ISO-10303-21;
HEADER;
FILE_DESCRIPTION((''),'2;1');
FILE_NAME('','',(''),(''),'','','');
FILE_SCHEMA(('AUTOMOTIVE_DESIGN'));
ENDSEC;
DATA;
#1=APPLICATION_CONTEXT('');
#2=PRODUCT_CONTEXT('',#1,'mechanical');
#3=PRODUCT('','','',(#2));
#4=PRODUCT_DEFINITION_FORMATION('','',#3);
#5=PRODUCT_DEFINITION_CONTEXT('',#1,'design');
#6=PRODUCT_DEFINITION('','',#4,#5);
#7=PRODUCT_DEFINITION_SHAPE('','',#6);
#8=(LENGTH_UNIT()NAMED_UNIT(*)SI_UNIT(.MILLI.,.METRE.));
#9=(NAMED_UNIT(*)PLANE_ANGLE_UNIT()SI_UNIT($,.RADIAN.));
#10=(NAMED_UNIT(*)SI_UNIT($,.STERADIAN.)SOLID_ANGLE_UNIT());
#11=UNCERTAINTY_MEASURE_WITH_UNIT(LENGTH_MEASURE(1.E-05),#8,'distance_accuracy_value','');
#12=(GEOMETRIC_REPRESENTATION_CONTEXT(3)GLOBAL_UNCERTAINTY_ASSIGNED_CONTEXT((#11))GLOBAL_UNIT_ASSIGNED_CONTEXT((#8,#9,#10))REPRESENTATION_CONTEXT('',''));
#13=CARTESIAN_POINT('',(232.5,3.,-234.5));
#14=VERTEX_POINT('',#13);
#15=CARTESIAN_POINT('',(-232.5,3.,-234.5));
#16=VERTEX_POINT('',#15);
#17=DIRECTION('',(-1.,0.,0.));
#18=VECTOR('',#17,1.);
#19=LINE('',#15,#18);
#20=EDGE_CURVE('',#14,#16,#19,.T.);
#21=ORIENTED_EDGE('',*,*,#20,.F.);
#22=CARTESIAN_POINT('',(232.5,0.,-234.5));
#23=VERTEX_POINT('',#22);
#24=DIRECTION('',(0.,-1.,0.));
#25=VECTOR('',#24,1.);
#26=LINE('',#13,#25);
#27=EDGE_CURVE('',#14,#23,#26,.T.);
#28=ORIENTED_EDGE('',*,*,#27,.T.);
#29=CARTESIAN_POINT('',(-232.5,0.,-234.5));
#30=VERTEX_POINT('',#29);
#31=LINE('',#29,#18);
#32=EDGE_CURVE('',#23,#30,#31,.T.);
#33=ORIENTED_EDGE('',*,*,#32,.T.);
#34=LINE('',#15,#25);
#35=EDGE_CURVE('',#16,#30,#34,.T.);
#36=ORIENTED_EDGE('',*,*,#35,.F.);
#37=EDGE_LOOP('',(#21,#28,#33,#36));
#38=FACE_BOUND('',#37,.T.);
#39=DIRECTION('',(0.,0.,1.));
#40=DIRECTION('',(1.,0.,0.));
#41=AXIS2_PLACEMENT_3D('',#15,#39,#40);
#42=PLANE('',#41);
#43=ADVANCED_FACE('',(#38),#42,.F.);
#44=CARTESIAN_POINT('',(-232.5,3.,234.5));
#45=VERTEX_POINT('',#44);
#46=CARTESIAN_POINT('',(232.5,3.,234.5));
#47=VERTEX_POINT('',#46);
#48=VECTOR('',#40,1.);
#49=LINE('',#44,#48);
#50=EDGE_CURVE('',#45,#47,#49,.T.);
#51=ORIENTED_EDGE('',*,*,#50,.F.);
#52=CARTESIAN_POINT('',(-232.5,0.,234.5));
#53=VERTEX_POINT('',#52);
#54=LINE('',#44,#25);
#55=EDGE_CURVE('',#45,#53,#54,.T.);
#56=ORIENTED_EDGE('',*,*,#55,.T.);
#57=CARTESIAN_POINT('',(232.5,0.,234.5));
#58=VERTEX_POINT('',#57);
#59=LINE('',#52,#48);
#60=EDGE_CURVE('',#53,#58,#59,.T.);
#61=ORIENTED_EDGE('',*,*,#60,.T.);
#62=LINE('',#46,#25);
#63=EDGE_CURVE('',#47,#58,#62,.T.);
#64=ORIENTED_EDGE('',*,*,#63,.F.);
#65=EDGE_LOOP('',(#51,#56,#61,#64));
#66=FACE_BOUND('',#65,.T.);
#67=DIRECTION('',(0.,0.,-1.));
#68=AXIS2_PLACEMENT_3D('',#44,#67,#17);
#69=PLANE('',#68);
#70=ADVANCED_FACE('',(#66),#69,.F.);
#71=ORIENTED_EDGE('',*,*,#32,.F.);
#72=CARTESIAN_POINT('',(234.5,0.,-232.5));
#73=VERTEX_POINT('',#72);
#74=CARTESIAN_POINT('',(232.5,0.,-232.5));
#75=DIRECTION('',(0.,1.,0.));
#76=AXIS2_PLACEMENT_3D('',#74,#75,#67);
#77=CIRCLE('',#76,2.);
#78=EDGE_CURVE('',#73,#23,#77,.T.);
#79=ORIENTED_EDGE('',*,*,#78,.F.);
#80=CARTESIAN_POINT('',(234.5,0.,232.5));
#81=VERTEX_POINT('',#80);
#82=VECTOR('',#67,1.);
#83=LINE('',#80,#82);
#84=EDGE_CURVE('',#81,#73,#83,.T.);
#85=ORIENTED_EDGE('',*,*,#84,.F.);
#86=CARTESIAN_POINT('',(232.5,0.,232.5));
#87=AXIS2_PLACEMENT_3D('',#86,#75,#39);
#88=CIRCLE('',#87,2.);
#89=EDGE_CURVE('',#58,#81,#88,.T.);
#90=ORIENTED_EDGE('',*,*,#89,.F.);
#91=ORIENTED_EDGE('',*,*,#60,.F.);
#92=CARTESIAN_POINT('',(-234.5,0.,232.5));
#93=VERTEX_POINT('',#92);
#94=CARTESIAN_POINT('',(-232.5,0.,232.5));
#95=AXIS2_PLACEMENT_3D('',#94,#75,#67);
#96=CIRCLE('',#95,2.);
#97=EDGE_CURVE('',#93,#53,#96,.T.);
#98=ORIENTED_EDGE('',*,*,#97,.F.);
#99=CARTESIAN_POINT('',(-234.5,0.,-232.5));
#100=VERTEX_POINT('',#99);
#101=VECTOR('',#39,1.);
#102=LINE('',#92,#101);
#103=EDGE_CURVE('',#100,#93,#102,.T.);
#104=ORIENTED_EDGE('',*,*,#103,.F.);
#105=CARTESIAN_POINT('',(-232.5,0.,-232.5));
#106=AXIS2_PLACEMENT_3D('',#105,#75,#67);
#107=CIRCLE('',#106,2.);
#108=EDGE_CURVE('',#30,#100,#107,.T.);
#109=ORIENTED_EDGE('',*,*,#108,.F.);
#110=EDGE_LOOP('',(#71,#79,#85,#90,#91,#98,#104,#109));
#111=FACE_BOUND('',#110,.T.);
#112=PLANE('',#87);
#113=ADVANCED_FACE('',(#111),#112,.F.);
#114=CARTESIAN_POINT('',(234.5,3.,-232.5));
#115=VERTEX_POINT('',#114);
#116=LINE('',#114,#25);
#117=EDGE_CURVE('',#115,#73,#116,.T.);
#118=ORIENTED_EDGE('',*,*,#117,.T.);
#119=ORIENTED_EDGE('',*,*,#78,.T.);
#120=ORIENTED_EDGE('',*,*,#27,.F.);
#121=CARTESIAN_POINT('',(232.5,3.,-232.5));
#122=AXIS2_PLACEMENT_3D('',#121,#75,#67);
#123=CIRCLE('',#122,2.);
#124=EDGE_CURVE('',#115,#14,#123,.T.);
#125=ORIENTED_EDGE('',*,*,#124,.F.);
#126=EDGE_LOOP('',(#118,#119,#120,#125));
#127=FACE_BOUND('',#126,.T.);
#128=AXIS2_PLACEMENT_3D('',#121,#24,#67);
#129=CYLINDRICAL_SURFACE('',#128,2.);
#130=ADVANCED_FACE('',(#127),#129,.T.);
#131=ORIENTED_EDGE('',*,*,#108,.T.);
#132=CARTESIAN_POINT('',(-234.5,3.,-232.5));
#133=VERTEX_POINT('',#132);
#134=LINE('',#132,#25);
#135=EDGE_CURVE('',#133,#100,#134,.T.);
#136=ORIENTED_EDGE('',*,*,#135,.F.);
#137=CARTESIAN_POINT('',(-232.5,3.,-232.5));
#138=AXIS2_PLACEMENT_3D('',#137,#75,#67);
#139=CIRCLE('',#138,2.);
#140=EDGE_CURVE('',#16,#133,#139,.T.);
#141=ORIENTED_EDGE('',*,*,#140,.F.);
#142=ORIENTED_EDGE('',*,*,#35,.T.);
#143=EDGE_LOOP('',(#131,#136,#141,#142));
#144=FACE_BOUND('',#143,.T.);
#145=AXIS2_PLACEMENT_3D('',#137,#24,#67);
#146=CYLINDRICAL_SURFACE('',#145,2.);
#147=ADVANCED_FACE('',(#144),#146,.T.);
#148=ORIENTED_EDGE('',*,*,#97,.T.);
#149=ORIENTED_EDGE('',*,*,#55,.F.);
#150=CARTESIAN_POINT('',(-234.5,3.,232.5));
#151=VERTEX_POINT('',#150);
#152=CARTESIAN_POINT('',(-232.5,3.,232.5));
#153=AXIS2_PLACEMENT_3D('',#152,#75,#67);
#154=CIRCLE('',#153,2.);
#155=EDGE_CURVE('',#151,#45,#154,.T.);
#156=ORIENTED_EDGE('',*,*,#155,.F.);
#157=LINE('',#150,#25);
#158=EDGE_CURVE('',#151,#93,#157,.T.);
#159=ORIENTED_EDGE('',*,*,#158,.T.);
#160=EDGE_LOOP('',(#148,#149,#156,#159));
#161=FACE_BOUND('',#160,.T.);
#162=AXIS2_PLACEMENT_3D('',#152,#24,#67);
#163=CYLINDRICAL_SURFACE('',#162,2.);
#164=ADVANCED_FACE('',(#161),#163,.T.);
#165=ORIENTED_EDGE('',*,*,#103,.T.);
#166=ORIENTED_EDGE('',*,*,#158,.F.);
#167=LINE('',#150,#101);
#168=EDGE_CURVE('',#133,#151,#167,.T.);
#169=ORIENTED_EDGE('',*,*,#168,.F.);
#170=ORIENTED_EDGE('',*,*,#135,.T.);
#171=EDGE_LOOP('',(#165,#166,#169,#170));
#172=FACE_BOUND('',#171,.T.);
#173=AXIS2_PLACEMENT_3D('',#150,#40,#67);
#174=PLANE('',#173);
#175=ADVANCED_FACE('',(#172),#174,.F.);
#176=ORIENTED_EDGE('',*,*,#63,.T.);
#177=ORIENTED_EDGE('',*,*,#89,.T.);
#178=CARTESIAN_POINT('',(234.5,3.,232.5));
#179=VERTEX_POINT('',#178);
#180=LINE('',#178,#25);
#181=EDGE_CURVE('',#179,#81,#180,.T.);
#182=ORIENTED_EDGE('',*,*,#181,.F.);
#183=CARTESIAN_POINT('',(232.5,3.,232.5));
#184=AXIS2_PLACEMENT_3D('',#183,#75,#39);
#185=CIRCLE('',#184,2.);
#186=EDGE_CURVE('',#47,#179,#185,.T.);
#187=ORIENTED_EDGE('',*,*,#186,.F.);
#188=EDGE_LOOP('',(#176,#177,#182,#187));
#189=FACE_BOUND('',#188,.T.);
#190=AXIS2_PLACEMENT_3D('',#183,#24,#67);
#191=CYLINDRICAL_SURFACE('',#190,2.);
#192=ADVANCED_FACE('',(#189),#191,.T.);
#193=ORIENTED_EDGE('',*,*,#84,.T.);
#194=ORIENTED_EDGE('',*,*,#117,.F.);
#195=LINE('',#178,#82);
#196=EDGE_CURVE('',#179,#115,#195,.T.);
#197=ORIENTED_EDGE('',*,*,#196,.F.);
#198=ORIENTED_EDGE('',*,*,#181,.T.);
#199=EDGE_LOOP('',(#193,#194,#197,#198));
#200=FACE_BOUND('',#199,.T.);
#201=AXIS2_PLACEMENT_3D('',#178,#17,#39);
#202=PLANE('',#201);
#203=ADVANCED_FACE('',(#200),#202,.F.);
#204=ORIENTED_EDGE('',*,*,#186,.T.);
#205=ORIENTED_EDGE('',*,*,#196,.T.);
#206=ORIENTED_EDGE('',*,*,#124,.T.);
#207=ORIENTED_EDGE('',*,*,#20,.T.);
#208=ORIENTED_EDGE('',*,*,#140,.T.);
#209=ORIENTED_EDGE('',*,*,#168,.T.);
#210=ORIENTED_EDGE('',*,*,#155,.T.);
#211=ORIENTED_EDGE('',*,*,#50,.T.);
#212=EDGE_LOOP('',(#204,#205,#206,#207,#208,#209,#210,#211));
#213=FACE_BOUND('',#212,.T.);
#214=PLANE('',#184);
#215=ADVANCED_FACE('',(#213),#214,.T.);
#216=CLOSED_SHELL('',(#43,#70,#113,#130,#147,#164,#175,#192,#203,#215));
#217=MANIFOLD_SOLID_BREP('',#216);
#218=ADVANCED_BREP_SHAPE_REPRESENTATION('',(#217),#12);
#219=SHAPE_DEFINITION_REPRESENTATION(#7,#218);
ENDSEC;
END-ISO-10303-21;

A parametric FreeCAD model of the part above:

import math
import FreeCAD as App
import Part
import Sketcher
Q = App.Units.Quantity

doc = App.newDocument("Part")
body = doc.addObject("PartDesign::Body", "Body")

# Sketch on XZ plane
sketch1 = doc.addObject("Sketcher::SketchObject", "Sketch")
body.addObject(sketch1)
sketch1.AttachmentSupport = (doc.XZ_Plane, [""])
sketch1.MapMode = "FlatFace"
sketch1.addGeometry(Part.LineSegment(App.Vector(-232.5, 234.5, 0), App.Vector(232.5, 234.5, 0)), False)
sketch1.addGeometry(Part.ArcOfCircle(Part.Circle(App.Vector(232.5, 232.5, 0), App.Vector(0, 0, 1), 2), math.radians(0), math.radians(90)), False)
sketch1.addGeometry(Part.LineSegment(App.Vector(234.5, 232.5, 0), App.Vector(234.5, -232.5, 0)), False)
sketch1.addGeometry(Part.ArcOfCircle(Part.Circle(App.Vector(232.5, -232.5, 0), App.Vector(0, 0, 1), 2), math.radians(-90), math.radians(0)), False)
sketch1.addGeometry(Part.LineSegment(App.Vector(232.5, -234.5, 0), App.Vector(-232.5, -234.5, 0)), False)
sketch1.addGeometry(Part.ArcOfCircle(Part.Circle(App.Vector(-232.5, -232.5, 0), App.Vector(0, 0, 1), 2), math.radians(-180), math.radians(-90)), False)
sketch1.addGeometry(Part.LineSegment(App.Vector(-234.5, -232.5, 0), App.Vector(-234.5, 232.5, 0)), False)
sketch1.addGeometry(Part.ArcOfCircle(Part.Circle(App.Vector(-232.5, 232.5, 0), App.Vector(0, 0, 1), 2), math.radians(90), math.radians(180)), False)
sketch1.addConstraint(Sketcher.Constraint("Tangent", 0, 2, 1, 2))
sketch1.addConstraint(Sketcher.Constraint("Tangent", 1, 1, 2, 1))
sketch1.addConstraint(Sketcher.Constraint("Tangent", 2, 2, 3, 2))
sketch1.addConstraint(Sketcher.Constraint("Tangent", 3, 1, 4, 1))
sketch1.addConstraint(Sketcher.Constraint("Tangent", 4, 2, 5, 2))
sketch1.addConstraint(Sketcher.Constraint("Tangent", 5, 1, 6, 1))
sketch1.addConstraint(Sketcher.Constraint("Tangent", 6, 2, 7, 2))
sketch1.addConstraint(Sketcher.Constraint("Tangent", 7, 1, 0, 1))
sketch1.addConstraint(Sketcher.Constraint("Horizontal", 0))
sketch1.addConstraint(Sketcher.Constraint("Vertical", 2))
sketch1.addConstraint(Sketcher.Constraint("Horizontal", 4))
sketch1.addConstraint(Sketcher.Constraint("Vertical", 6))
sketch1.addConstraint(Sketcher.Constraint("Equal", 1, 3))
sketch1.addConstraint(Sketcher.Constraint("Equal", 3, 5))
sketch1.addConstraint(Sketcher.Constraint("Equal", 5, 7))
sketch1.addConstraint(Sketcher.Constraint("Symmetric", 1, 3, 5, 3, -1, 1))
sketch1.addConstraint(Sketcher.Constraint("Equal", 4, 2))
sketch1.addConstraint(Sketcher.Constraint("Radius", 1, Q("2 mm")))
sketch1.addConstraint(Sketcher.Constraint("DistanceX", 0, 1, 0, 2, Q("465 mm")))
pad1 = doc.addObject("PartDesign::Pad", "Pad")
body.addObject(pad1)
pad1.Profile = sketch1
pad1.Length = 3
pad1.Reversed = True

doc.recompute()
